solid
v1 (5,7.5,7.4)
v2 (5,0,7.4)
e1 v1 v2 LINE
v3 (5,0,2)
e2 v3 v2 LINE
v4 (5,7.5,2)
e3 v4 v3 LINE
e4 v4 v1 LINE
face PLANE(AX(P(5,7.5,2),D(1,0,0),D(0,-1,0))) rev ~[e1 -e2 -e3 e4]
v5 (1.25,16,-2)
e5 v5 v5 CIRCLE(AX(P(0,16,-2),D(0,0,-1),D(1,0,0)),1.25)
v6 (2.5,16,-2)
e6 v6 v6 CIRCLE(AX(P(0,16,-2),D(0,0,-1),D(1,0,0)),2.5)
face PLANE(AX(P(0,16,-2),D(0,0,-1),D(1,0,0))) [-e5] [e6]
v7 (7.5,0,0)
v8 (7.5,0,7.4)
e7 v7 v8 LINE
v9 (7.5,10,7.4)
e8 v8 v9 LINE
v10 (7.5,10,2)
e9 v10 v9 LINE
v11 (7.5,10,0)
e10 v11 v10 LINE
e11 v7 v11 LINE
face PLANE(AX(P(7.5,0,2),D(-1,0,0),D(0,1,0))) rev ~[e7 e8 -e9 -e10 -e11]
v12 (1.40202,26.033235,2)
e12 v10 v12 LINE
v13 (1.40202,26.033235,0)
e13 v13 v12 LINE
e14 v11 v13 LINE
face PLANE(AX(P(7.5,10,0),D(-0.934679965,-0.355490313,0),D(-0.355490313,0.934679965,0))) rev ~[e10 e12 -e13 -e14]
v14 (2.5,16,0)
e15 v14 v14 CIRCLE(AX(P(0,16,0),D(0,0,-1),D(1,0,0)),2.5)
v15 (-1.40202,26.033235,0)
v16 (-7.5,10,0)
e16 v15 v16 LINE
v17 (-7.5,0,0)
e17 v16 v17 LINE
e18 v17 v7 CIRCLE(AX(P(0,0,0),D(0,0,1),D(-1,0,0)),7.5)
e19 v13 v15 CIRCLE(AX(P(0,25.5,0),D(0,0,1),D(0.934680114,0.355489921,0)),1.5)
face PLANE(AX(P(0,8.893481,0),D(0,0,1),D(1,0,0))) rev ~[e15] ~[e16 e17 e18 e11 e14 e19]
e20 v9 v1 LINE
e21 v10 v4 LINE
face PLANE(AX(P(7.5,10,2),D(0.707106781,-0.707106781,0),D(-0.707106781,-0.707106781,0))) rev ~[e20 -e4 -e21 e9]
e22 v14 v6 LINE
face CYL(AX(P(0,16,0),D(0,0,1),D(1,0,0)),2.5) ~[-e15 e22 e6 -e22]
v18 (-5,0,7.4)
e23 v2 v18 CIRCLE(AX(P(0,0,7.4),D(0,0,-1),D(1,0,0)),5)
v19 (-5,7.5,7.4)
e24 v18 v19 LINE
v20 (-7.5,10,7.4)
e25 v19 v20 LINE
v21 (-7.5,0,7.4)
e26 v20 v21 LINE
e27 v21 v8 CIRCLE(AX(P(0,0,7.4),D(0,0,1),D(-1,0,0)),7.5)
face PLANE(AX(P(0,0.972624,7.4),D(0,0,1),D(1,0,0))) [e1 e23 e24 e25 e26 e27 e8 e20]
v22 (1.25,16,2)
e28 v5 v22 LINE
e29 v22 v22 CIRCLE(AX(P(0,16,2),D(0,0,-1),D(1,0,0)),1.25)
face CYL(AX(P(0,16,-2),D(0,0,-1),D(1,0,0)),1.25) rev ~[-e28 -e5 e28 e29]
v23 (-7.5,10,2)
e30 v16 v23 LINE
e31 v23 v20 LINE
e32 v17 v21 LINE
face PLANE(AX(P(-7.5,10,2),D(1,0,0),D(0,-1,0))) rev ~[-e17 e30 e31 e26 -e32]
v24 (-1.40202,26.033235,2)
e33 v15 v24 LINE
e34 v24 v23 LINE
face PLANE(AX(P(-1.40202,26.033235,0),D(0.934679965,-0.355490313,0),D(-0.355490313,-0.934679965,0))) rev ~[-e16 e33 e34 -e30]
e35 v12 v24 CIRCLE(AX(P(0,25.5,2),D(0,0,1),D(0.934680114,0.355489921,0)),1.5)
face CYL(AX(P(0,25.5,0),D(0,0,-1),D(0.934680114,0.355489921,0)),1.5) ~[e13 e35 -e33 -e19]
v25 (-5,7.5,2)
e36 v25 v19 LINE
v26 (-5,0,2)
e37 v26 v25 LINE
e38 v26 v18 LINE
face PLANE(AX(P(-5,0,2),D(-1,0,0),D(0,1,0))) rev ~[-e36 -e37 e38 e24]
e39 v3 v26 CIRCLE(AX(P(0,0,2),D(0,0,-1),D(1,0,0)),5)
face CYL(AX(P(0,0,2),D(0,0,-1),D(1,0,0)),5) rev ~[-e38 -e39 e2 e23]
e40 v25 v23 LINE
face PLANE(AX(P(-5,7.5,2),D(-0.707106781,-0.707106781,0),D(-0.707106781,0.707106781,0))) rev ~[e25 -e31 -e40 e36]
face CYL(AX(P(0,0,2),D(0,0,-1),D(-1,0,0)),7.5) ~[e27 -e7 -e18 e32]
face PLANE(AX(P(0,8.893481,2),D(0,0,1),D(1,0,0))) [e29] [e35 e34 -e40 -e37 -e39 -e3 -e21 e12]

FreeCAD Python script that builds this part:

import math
import FreeCAD as App
import Part
import Sketcher

doc = App.newDocument("Part")
body = doc.addObject("PartDesign::Body", "Body")

# Sketch on XY plane
sketch1 = doc.addObject("Sketcher::SketchObject", "Sketch")
body.addObject(sketch1)
sketch1.AttachmentSupport = (doc.XY_Plane, [""])
sketch1.MapMode = "FlatFace"
sketch1.addGeometry(Part.LineSegment(App.Vector(-7.5, 10, 0), App.Vector(-7.5, 0, 0)), False)
sketch1.addGeometry(Part.ArcOfCircle(Part.Circle(App.Vector(0, 0, 0), App.Vector(0, 0, 1), 7.5), math.radians(180), math.radians(360)), False)
sketch1.addGeometry(Part.LineSegment(App.Vector(7.5, 0, 0), App.Vector(7.5, 10, 0)), False)
sketch1.addGeometry(Part.LineSegment(App.Vector(7.5, 10, 0), App.Vector(1.40202, 26.033235, 0)), False)
sketch1.addGeometry(Part.ArcOfCircle(Part.Circle(App.Vector(0, 25.5, 0), App.Vector(0, 0, 1), 1.5), math.radians(20.823474), math.radians(159.176526)), False)
sketch1.addGeometry(Part.LineSegment(App.Vector(-1.40202, 26.033235, 0), App.Vector(-7.5, 10, 0)), False)
sketch1.addConstraint(Sketcher.Constraint("Tangent", 0, 2, 1, 1))
sketch1.addConstraint(Sketcher.Constraint("Tangent", 1, 2, 2, 1))
sketch1.addConstraint(Sketcher.Constraint("Coincident", 2, 2, 3, 1))
sketch1.addConstraint(Sketcher.Constraint("Tangent", 3, 2, 4, 1))
sketch1.addConstraint(Sketcher.Constraint("Tangent", 4, 2, 5, 1))
sketch1.addConstraint(Sketcher.Constraint("Coincident", 5, 2, 0, 1))
sketch1.addConstraint(Sketcher.Constraint("Vertical", 0))
sketch1.addConstraint(Sketcher.Constraint("Vertical", 2))
sketch1.addConstraint(Sketcher.Constraint("Coincident", 1, 3, -1, 1))
sketch1.addConstraint(Sketcher.Constraint("Symmetric", 3, 2, 4, 2, -2))
sketch1.addConstraint(Sketcher.Constraint("Radius", 1, 7.5))
sketch1.addConstraint(Sketcher.Constraint("Radius", 4, 1.5))
sketch1.addConstraint(Sketcher.Constraint("DistanceY", 0, 2, 0, 1, 10.0))
sketch1.addConstraint(Sketcher.Constraint("DistanceY", -1, 1, 4, 3, 25.5))
pad1 = doc.addObject("PartDesign::Pad", "Pad")
body.addObject(pad1)
pad1.Profile = sketch1
pad1.Length = 2

# Sketch on XY plane
sketch2 = doc.addObject("Sketcher::SketchObject", "Sketch001")
body.addObject(sketch2)
sketch2.AttachmentSupport = (doc.XY_Plane, [""])
sketch2.MapMode = "FlatFace"
sketch2.AttachmentOffset = App.Placement(App.Vector(0, 0, 2), App.Rotation())
sketch2.addGeometry(Part.LineSegment(App.Vector(-7.5, 10, 0), App.Vector(-7.5, 0, 0)), False)
sketch2.addGeometry(Part.ArcOfCircle(Part.Circle(App.Vector(0, 0, 0), App.Vector(0, 0, 1), 7.5), math.radians(180), math.radians(360)), False)
sketch2.addGeometry(Part.LineSegment(App.Vector(7.5, 0, 0), App.Vector(7.5, 10, 0)), False)
sketch2.addGeometry(Part.LineSegment(App.Vector(7.5, 10, 0), App.Vector(5, 7.5, 0)), False)
sketch2.addGeometry(Part.LineSegment(App.Vector(5, 7.5, 0), App.Vector(5, 0, 0)), False)
sketch2.addGeometry(Part.ArcOfCircle(Part.Circle(App.Vector(0, 0, 0), App.Vector(0, 0, 1), 5), math.radians(180), math.radians(360)), False)
sketch2.addGeometry(Part.LineSegment(App.Vector(-5, 0, 0), App.Vector(-5, 7.5, 0)), False)
sketch2.addGeometry(Part.LineSegment(App.Vector(-5, 7.5, 0), App.Vector(-7.5, 10, 0)), False)
sketch2.addConstraint(Sketcher.Constraint("Tangent", 0, 2, 1, 1))
sketch2.addConstraint(Sketcher.Constraint("Tangent", 1, 2, 2, 1))
sketch2.addConstraint(Sketcher.Constraint("Coincident", 2, 2, 3, 1))
sketch2.addConstraint(Sketcher.Constraint("Coincident", 3, 2, 4, 1))
sketch2.addConstraint(Sketcher.Constraint("Tangent", 4, 2, 5, 2))
sketch2.addConstraint(Sketcher.Constraint("Tangent", 5, 1, 6, 1))
sketch2.addConstraint(Sketcher.Constraint("Coincident", 6, 2, 7, 1))
sketch2.addConstraint(Sketcher.Constraint("Coincident", 7, 2, 0, 1))
sketch2.addConstraint(Sketcher.Constraint("Vertical", 0))
sketch2.addConstraint(Sketcher.Constraint("Vertical", 2))
sketch2.addConstraint(Sketcher.Constraint("Vertical", 4))
sketch2.addConstraint(Sketcher.Constraint("Vertical", 6))
sketch2.addConstraint(Sketcher.Constraint("Coincident", 1, 3, -1, 1))
sketch2.addConstraint(Sketcher.Constraint("Coincident", 5, 3, -1, 1))
sketch2.addConstraint(Sketcher.Constraint("Perpendicular", 3, 7))
sketch2.addConstraint(Sketcher.Constraint("Horizontal", 3, 2, 6, 2))
sketch2.addConstraint(Sketcher.Constraint("Horizontal", 2, 2, 7, 2))
sketch2.addConstraint(Sketcher.Constraint("Radius", 5, 5.0))
sketch2.addConstraint(Sketcher.Constraint("Radius", 1, 7.5))
sketch2.addConstraint(Sketcher.Constraint("DistanceY", 0, 2, 0, 1, 10.0))
pad2 = doc.addObject("PartDesign::Pad", "Pad001")
body.addObject(pad2)
pad2.Profile = sketch2
pad2.Length = 5.4

# Sketch on XY plane
sketch3 = doc.addObject("Sketcher::SketchObject", "Sketch002")
body.addObject(sketch3)
sketch3.AttachmentSupport = (doc.XY_Plane, [""])
sketch3.MapMode = "FlatFace"
sketch3.addGeometry(Part.Circle(App.Vector(0, 16, 0), App.Vector(0, 0, 1), 2.5), False)
sketch3.addConstraint(Sketcher.Constraint("PointOnObject", 0, 3, -2))
sketch3.addConstraint(Sketcher.Constraint("Diameter", 0, 5.0))
sketch3.addConstraint(Sketcher.Constraint("DistanceY", -1, 1, 0, 3, 16.0))
pad3 = doc.addObject("PartDesign::Pad", "Pad002")
body.addObject(pad3)
pad3.Profile = sketch3
pad3.Length = 2
pad3.Reversed = True

# Sketch on XY plane
sketch4 = doc.addObject("Sketcher::SketchObject", "Sketch003")
body.addObject(sketch4)
sketch4.AttachmentSupport = (doc.XY_Plane, [""])
sketch4.MapMode = "FlatFace"
sketch4.AttachmentOffset = App.Placement(App.Vector(0, 0, -2), App.Rotation())
sketch4.addGeometry(Part.Circle(App.Vector(0, 16, 0), App.Vector(0, 0, 1), 1.25), False)
sketch4.addConstraint(Sketcher.Constraint("PointOnObject", 0, 3, -2))
sketch4.addConstraint(Sketcher.Constraint("Diameter", 0, 2.5))
sketch4.addConstraint(Sketcher.Constraint("DistanceY", -1, 1, 0, 3, 16.0))
pocket1 = doc.addObject("PartDesign::Pocket", "Pocket")
body.addObject(pocket1)
pocket1.Profile = sketch4
pocket1.Length = 25
pocket1.Reversed = True

doc.recompute()
